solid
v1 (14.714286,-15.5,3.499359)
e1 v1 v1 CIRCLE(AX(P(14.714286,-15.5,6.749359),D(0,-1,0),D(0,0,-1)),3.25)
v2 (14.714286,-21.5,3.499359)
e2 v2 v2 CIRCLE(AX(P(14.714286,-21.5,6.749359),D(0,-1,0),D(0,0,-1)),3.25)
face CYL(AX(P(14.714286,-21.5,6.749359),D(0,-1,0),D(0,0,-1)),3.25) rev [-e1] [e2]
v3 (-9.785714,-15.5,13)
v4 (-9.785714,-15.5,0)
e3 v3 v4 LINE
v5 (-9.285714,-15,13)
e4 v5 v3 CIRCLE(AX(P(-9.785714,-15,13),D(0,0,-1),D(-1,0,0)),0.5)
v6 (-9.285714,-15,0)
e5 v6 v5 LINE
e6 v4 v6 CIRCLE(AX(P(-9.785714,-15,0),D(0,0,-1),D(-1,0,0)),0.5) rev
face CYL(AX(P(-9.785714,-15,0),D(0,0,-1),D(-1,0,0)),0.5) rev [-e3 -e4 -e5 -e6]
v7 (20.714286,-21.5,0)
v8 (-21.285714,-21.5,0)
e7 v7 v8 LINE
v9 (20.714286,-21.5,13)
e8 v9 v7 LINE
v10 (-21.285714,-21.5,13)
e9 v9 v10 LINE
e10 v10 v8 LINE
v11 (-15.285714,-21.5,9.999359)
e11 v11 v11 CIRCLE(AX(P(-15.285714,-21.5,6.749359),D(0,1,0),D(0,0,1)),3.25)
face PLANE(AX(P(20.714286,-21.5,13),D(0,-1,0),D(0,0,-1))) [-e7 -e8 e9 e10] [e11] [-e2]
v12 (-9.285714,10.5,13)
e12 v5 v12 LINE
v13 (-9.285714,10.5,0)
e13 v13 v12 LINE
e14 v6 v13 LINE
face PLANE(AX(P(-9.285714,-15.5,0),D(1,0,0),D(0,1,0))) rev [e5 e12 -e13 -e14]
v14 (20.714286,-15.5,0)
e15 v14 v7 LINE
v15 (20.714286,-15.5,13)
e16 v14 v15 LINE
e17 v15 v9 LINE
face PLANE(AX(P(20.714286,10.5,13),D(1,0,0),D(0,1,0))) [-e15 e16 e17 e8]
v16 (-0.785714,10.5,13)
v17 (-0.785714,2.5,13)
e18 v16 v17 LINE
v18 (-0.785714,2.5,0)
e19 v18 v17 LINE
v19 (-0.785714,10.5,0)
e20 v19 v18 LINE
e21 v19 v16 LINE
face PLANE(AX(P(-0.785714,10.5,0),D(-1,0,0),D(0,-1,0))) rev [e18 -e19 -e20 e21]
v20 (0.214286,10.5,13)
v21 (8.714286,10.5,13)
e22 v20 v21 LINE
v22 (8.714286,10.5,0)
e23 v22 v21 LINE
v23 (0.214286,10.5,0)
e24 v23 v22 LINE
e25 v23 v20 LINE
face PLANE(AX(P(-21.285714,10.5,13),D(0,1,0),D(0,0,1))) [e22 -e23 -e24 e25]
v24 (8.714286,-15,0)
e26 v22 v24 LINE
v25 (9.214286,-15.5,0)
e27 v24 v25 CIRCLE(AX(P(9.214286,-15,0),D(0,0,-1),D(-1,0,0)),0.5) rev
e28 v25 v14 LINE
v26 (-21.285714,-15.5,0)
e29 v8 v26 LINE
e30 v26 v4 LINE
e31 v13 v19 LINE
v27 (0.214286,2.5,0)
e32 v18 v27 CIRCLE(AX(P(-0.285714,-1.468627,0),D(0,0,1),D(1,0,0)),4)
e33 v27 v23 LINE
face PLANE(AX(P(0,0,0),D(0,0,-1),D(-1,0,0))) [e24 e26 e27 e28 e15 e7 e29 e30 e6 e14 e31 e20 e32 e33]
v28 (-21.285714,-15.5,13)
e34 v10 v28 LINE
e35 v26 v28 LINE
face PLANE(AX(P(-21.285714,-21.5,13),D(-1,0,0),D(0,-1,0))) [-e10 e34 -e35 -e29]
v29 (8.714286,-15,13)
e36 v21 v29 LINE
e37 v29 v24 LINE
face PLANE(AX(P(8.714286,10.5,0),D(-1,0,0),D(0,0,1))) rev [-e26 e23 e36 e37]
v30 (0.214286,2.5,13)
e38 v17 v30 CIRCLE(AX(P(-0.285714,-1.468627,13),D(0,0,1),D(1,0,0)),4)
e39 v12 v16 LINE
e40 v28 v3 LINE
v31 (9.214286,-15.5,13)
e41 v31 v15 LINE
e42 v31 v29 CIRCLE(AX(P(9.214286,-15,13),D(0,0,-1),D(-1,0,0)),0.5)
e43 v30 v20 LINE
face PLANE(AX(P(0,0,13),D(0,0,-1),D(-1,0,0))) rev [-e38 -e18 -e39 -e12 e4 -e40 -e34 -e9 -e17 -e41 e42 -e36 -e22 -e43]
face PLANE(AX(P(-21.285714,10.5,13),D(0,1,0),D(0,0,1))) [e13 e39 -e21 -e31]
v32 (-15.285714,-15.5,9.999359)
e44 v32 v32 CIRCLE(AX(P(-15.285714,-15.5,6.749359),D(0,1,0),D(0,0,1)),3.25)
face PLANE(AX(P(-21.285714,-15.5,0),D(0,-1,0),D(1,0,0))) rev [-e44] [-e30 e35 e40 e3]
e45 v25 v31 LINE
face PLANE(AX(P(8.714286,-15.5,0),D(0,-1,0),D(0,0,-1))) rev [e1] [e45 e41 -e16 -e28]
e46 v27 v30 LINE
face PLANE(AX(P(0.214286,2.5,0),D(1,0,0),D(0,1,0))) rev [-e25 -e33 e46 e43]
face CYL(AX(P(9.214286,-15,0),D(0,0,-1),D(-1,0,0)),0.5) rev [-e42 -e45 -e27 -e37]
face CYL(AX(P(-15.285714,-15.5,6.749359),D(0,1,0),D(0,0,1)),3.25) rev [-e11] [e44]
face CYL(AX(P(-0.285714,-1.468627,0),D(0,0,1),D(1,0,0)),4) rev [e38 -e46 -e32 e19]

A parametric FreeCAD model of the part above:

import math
import FreeCAD as App
import Part
import Sketcher
from FreeCAD import Vector
Q = App.Units.Quantity


def edges_at(feature, points):
    """Names of the edges that pass closest to the given points."""
    edges = feature.Shape.Edges
    near = lambda p: min(range(len(edges)), key=lambda i: edges[i].distToShape(Part.Vertex(*p))[0])
    return sorted({f"Edge{near(p) + 1}" for p in points})

doc = App.newDocument("Part")
body = doc.addObject("PartDesign::Body", "Body")

sketch1 = body.newObject("Sketcher::SketchObject", "Sketch")
sketch1.AttachmentSupport = (doc.getObject("XY_Plane"), [""])
sketch1.MapMode = "FlatFace"
sketch1.addGeometry([
    Part.LineSegment(Vector(21, 10, 0), Vector(21, -22, 0)),
    Part.LineSegment(Vector(21, -22, 0), Vector(-21, -22, 0)),
    Part.LineSegment(Vector(-21, -22, 0), Vector(-21, 10, 0)),
    Part.LineSegment(Vector(-21, 10, 0), Vector(21, 10, 0)),
], False)
sketch1.addConstraint([
    Sketcher.Constraint("Coincident", 0, 2, 1, 1),
    Sketcher.Constraint("Coincident", 1, 2, 2, 1),
    Sketcher.Constraint("Coincident", 2, 2, 3, 1),
    Sketcher.Constraint("Coincident", 3, 2, 0, 1),
    Sketcher.Constraint("Vertical", 0),
    Sketcher.Constraint("Horizontal", 1),
    Sketcher.Constraint("Vertical", 2),
    Sketcher.Constraint("Horizontal", 3),
    Sketcher.Constraint("DistanceX", 1, 2, 1, 1, Q("42 mm")),
    Sketcher.Constraint("DistanceY", 0, 2, 0, 1, Q("32 mm")),
    Sketcher.Constraint("DistanceY", 0, 2, -1, 1, Q("21.5 mm")),
    Sketcher.Constraint("DistanceX", -1, 1, 0, 2, Q("20.714286 mm")),
])
pad1 = body.newObject("PartDesign::Pad", "Pad")
pad1.Profile = sketch1
pad1.Length = 13

sketch2 = body.newObject("Sketcher::SketchObject", "Sketch001")
sketch2.AttachmentSupport = (doc.getObject("XY_Plane"), [""])
sketch2.MapMode = "FlatFace"
sketch2.AttachmentOffset = App.Placement(Vector(0, 0, 13), App.Rotation())
sketch2.addGeometry([
    Part.LineSegment(Vector(9, 10, 0), Vector(9, -16, 0)),
    Part.LineSegment(Vector(9, -16, 0), Vector(21, -16, 0)),
    Part.LineSegment(Vector(21, -16, 0), Vector(21, 10, 0)),
    Part.LineSegment(Vector(21, 10, 0), Vector(9, 10, 0)),
], False)
sketch2.addConstraint([
    Sketcher.Constraint("Coincident", 0, 2, 1, 1),
    Sketcher.Constraint("Coincident", 1, 2, 2, 1),
    Sketcher.Constraint("Coincident", 2, 2, 3, 1),
    Sketcher.Constraint("Coincident", 3, 2, 0, 1),
    Sketcher.Constraint("Vertical", 0),
    Sketcher.Constraint("Horizontal", 1),
    Sketcher.Constraint("Vertical", 2),
    Sketcher.Constraint("Horizontal", 3),
    Sketcher.Constraint("DistanceX", 1, 1, 1, 2, Q("12 mm")),
    Sketcher.Constraint("DistanceY", 0, 2, 0, 1, Q("26 mm")),
    Sketcher.Constraint("DistanceY", 0, 2, -1, 1, Q("15.5 mm")),
    Sketcher.Constraint("DistanceX", -1, 1, 0, 2, Q("8.714286 mm")),
])
pocket1 = body.newObject("PartDesign::Pocket", "Pocket")
pocket1.Profile = sketch2
pocket1.Type = "ThroughAll"

sketch3 = body.newObject("Sketcher::SketchObject", "Sketch002")
sketch3.AttachmentSupport = (doc.getObject("XY_Plane"), [""])
sketch3.MapMode = "FlatFace"
sketch3.AttachmentOffset = App.Placement(Vector(0, 0, 13), App.Rotation())
sketch3.addGeometry([
    Part.LineSegment(Vector(-21, 10, 0), Vector(-21, -16, 0)),
    Part.LineSegment(Vector(-21, -16, 0), Vector(-9, -16, 0)),
    Part.LineSegment(Vector(-9, -16, 0), Vector(-9, 10, 0)),
    Part.LineSegment(Vector(-9, 10, 0), Vector(-21, 10, 0)),
], False)
sketch3.addConstraint([
    Sketcher.Constraint("Coincident", 0, 2, 1, 1),
    Sketcher.Constraint("Coincident", 1, 2, 2, 1),
    Sketcher.Constraint("Coincident", 2, 2, 3, 1),
    Sketcher.Constraint("Coincident", 3, 2, 0, 1),
    Sketcher.Constraint("Vertical", 0),
    Sketcher.Constraint("Horizontal", 1),
    Sketcher.Constraint("Vertical", 2),
    Sketcher.Constraint("Horizontal", 3),
    Sketcher.Constraint("DistanceX", 1, 1, 1, 2, Q("12 mm")),
    Sketcher.Constraint("DistanceY", 0, 2, 0, 1, Q("26 mm")),
    Sketcher.Constraint("DistanceY", 0, 2, -1, 1, Q("15.5 mm")),
    Sketcher.Constraint("DistanceX", 0, 2, -1, 1, Q("21.285714 mm")),
])
pocket2 = body.newObject("PartDesign::Pocket", "Pocket001")
pocket2.Profile = sketch3
pocket2.Type = "ThroughAll"

sketch4 = body.newObject("Sketcher::SketchObject", "Sketch003")
sketch4.AttachmentSupport = (doc.getObject("XY_Plane"), [""])
sketch4.MapMode = "FlatFace"
sketch4.AttachmentOffset = App.Placement(Vector(0, 0, 13), App.Rotation())
sketch4.addGeometry([
    Part.LineSegment(Vector(0.2, 10.5, 0), Vector(-0.8, 10.5, 0)),
    Part.LineSegment(Vector(-0.8, 10.5, 0), Vector(-0.8, 2.5, 0)),
    Part.ArcOfCircle(Part.Circle(Vector(-0.3, -1.5, 0), Vector(0, 0, 1), 4), math.radians(82.82), math.radians(97.18)),
    Part.LineSegment(Vector(0.2, 2.5, 0), Vector(0.2, 10.5, 0)),
], False)
sketch4.addConstraint([
    Sketcher.Constraint("Coincident", 0, 2, 1, 1),
    Sketcher.Constraint("Coincident", 1, 2, 2, 2),
    Sketcher.Constraint("Coincident", 2, 1, 3, 1),
    Sketcher.Constraint("Coincident", 3, 2, 0, 1),
    Sketcher.Constraint("Horizontal", 0),
    Sketcher.Constraint("Vertical", 1),
    Sketcher.Constraint("Vertical", 3),
    Sketcher.Constraint("Horizontal", 1, 2, 2, 1),
    Sketcher.Constraint("Radius", 2, Q("4 mm")),
    Sketcher.Constraint("DistanceX", 0, 2, 0, 1, Q("1 mm")),
    Sketcher.Constraint("DistanceY", 1, 2, 1, 1, Q("8 mm")),
    Sketcher.Constraint("DistanceY", -1, 1, 0, 2, Q("10.5 mm")),
    Sketcher.Constraint("DistanceX", 2, 3, -1, 1, Q("0.285714 mm")),
])
pocket3 = body.newObject("PartDesign::Pocket", "Pocket002")
pocket3.Profile = sketch4
pocket3.Type = "ThroughAll"

sketch5 = body.newObject("Sketcher::SketchObject", "Sketch004")
sketch5.AttachmentSupport = (doc.getObject("XZ_Plane"), [""])
sketch5.MapMode = "FlatFace"
sketch5.AttachmentOffset = App.Placement(Vector(0, 0, 1.468627), App.Rotation())
sketch5.addGeometry([
    Part.LineSegment(Vector(-0.3, 0, 0), Vector(-0.3, 13, 0)),
    Part.LineSegment(Vector(-0.3, 13, 0), Vector(3.7, 13, 0)),
    Part.LineSegment(Vector(3.7, 13, 0), Vector(3.7, 0, 0)),
    Part.LineSegment(Vector(3.7, 0, 0), Vector(-0.3, 0, 0)),
], False)
sketch5.addGeometry(Part.LineSegment(Vector(-0.3, 0, 0), Vector(-0.3, 13, 0)), True)
sketch5.addConstraint([
    Sketcher.Constraint("Coincident", 0, 2, 1, 1),
    Sketcher.Constraint("Coincident", 1, 2, 2, 1),
    Sketcher.Constraint("Coincident", 2, 2, 3, 1),
    Sketcher.Constraint("Coincident", 3, 2, 0, 1),
    Sketcher.Constraint("Vertical", 0),
    Sketcher.Constraint("Horizontal", 1),
    Sketcher.Constraint("Vertical", 2),
    Sketcher.Constraint("Horizontal", 3),
    Sketcher.Constraint("Vertical", 4),
    Sketcher.Constraint("Coincident", 4, 1, 3, 2),
    Sketcher.Constraint("PointOnObject", 2, 2, -1),
    Sketcher.Constraint("Horizontal", 1, 2, 4, 2),
    Sketcher.Constraint("DistanceX", 1, 1, 1, 2, Q("4 mm")),
    Sketcher.Constraint("DistanceY", 0, 1, 0, 2, Q("13 mm")),
    Sketcher.Constraint("DistanceX", 0, 2, -1, 1, Q("0.285714 mm")),
])
groove = body.newObject("PartDesign::Groove", "Groove")
groove.Profile = sketch5
groove.ReferenceAxis = (sketch5, ["Axis0"])
groove.Angle = 360

sketch6 = body.newObject("Sketcher::SketchObject", "Sketch005")
sketch6.AttachmentSupport = (doc.getObject("XZ_Plane"), [""])
sketch6.MapMode = "FlatFace"
sketch6.AttachmentOffset = App.Placement(Vector(0, 0, 21.5), App.Rotation())
sketch6.addGeometry(Part.Circle(Vector(14.7, 6.7, 0), Vector(0, 0, 1), 3.2), False)
sketch6.addConstraint([
    Sketcher.Constraint("Diameter", 0, Q("6.5 mm")),
    Sketcher.Constraint("DistanceY", -1, 1, 0, 3, Q("6.749359 mm")),
    Sketcher.Constraint("DistanceX", -1, 1, 0, 3, Q("14.714286 mm")),
])
doc.recompute()
hole = body.newObject("PartDesign::Hole", "Hole")
hole.Profile = sketch6
hole.ThreadType = "None"
hole.Diameter = 6.5
hole.DepthType = "Dimension"
hole.Depth = 32
hole.DrillPoint = "Flat"

sketch7 = body.newObject("Sketcher::SketchObject", "Sketch006")
sketch7.AttachmentSupport = (doc.getObject("XZ_Plane"), [""])
sketch7.MapMode = "FlatFace"
sketch7.AttachmentOffset = App.Placement(Vector(0, 0, 15.5), App.Rotation())
sketch7.addGeometry(Part.Circle(Vector(-15.3, 6.7, 0), Vector(0, 0, 1), 3.2), False)
sketch7.addConstraint([
    Sketcher.Constraint("Diameter", 0, Q("6.5 mm")),
    Sketcher.Constraint("DistanceY", -1, 1, 0, 3, Q("6.749359 mm")),
    Sketcher.Constraint("DistanceX", 0, 3, -1, 1, Q("15.285714 mm")),
])
doc.recompute()
hole2 = body.newObject("PartDesign::Hole", "Hole001")
hole2.Profile = sketch7
hole2.ThreadType = "None"
hole2.Diameter = 6.5
hole2.DepthType = "ThroughAll"
hole2.Reversed = True
doc.recompute()

fillet = body.newObject("PartDesign::Fillet", "Fillet")
fillet.Base = (hole2, edges_at(hole2, [(8.714, -15.5, 6.5), (-9.286, -15.5, 6.5)]))
fillet.Radius = 0.5

doc.recompute()
